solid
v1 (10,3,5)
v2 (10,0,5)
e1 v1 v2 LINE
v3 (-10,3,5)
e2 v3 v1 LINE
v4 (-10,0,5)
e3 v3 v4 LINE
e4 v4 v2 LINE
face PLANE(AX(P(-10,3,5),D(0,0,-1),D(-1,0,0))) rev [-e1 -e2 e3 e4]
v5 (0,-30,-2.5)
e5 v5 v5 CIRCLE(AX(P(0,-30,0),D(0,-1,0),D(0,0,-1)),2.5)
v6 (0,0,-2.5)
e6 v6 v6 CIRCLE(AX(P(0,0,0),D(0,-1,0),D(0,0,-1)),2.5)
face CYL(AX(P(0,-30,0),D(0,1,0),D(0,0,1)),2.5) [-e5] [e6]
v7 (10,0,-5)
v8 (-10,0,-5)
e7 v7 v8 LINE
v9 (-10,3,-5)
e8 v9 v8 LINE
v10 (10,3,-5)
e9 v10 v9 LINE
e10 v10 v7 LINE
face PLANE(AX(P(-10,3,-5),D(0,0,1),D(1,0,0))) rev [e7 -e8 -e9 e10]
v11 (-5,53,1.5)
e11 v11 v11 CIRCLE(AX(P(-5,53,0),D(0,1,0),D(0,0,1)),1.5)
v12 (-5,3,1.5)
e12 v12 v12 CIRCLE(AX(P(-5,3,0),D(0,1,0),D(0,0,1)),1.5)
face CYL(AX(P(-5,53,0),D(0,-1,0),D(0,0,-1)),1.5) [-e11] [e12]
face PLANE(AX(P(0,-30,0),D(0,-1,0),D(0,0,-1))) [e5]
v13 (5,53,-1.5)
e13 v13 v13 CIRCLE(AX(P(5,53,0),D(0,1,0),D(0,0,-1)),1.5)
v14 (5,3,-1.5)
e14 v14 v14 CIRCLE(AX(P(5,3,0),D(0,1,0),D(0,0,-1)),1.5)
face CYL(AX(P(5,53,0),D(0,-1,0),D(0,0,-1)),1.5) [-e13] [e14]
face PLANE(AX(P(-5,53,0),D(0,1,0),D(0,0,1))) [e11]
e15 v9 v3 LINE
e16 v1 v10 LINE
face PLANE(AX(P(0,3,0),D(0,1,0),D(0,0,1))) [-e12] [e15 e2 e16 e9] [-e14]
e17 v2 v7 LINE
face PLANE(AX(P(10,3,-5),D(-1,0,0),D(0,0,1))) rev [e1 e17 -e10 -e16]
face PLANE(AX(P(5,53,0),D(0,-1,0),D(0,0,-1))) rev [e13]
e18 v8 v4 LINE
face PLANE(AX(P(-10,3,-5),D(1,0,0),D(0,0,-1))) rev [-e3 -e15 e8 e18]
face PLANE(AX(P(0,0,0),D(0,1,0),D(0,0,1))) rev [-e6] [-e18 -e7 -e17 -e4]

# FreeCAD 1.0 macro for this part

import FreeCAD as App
import Part
import Sketcher

doc = App.newDocument("Part")
params = doc.addObject("Spreadsheet::Sheet", "Params")
for row, (alias, value) in enumerate([
    ("sketch1_width", "20 mm"),
    ("sketch1_height", "10 mm"),
    ("pad1_length", "3 mm"),
    ("sketch2_diameter", "3 mm"),
    ("pad2_length", "50 mm"),
    ("sketch3_diameter", "5 mm"),
    ("pad3_length", "30 mm"),
], start=1):
    params.set(f"A{row}", alias)
    params.set(f"B{row}", "=" + value)
    params.setAlias(f"B{row}", alias)

body = doc.addObject("PartDesign::Body", "Body")

# Sketch on XZ plane
sketch1 = body.newObject("Sketcher::SketchObject", "Sketch")
sketch1.AttachmentSupport = (doc.getObject("XZ_Plane"), [""])
sketch1.MapMode = "FlatFace"
sketch1.addGeometry([
    Part.LineSegment(App.Vector(-10, -5, 0), App.Vector(-10, 5, 0)),
    Part.LineSegment(App.Vector(-10, 5, 0), App.Vector(10, 5, 0)),
    Part.LineSegment(App.Vector(10, 5, 0), App.Vector(10, -5, 0)),
    Part.LineSegment(App.Vector(10, -5, 0), App.Vector(-10, -5, 0)),
], False)
sketch1.addConstraint([
    Sketcher.Constraint("Coincident", 0, 2, 1, 1),
    Sketcher.Constraint("Coincident", 1, 2, 2, 1),
    Sketcher.Constraint("Coincident", 2, 2, 3, 1),
    Sketcher.Constraint("Coincident", 3, 2, 0, 1),
    Sketcher.Constraint("Vertical", 0),
    Sketcher.Constraint("Horizontal", 1),
    Sketcher.Constraint("Vertical", 2),
    Sketcher.Constraint("Horizontal", 3),
    Sketcher.Constraint("Symmetric", 0, 2, 2, 2, -1, 1),
    Sketcher.Constraint("DistanceX", 1, 1, 1, 2, 20.0),
    Sketcher.Constraint("DistanceY", 0, 1, 0, 2, 10.0),
])
sketch1.setExpression("Constraints[9]", "Params.sketch1_width")
sketch1.setExpression("Constraints[10]", "Params.sketch1_height")
pad1 = body.newObject("PartDesign::Pad", "Pad")
pad1.Profile = sketch1
pad1.setExpression("Length", "Params.pad1_length")
pad1.Reversed = True

# Sketch on XZ plane
sketch2 = body.newObject("Sketcher::SketchObject", "Sketch001")
sketch2.AttachmentSupport = (doc.getObject("XZ_Plane"), [""])
sketch2.MapMode = "FlatFace"
sketch2.AttachmentOffset = App.Placement(App.Vector(0, 0, -3), App.Rotation())
sketch2.addGeometry([
    Part.Circle(App.Vector(-5, 0, 0), App.Vector(0, 0, 1), 1.5),
    Part.Circle(App.Vector(5, 0, 0), App.Vector(0, 0, 1), 1.5),
], False)
sketch2.addConstraint([
    Sketcher.Constraint("Equal", 0, 1),
    Sketcher.Constraint("Symmetric", 0, 3, 1, 3, -1, 1),
    Sketcher.Constraint("PointOnObject", 0, 3, -1),
    Sketcher.Constraint("Diameter", 0, 3.0),
    Sketcher.Constraint("DistanceX", 0, 3, -1, 1, 5.0),
])
sketch2.setExpression("Constraints[3]", "Params.sketch2_diameter")
pad2 = body.newObject("PartDesign::Pad", "Pad001")
pad2.Profile = sketch2
pad2.setExpression("Length", "Params.pad2_length")
pad2.Reversed = True

# Sketch on XZ plane
sketch3 = body.newObject("Sketcher::SketchObject", "Sketch002")
sketch3.AttachmentSupport = (doc.getObject("XZ_Plane"), [""])
sketch3.MapMode = "FlatFace"
sketch3.addGeometry(Part.Circle(App.Vector(0, 0, 0), App.Vector(0, 0, 1), 2.5), False)
sketch3.addConstraint([
    Sketcher.Constraint("Coincident", 0, 3, -1, 1),
    Sketcher.Constraint("Diameter", 0, 5.0),
])
sketch3.setExpression("Constraints[1]", "Params.sketch3_diameter")
pad3 = body.newObject("PartDesign::Pad", "Pad002")
pad3.Profile = sketch3
pad3.setExpression("Length", "Params.pad3_length")

doc.recompute()
